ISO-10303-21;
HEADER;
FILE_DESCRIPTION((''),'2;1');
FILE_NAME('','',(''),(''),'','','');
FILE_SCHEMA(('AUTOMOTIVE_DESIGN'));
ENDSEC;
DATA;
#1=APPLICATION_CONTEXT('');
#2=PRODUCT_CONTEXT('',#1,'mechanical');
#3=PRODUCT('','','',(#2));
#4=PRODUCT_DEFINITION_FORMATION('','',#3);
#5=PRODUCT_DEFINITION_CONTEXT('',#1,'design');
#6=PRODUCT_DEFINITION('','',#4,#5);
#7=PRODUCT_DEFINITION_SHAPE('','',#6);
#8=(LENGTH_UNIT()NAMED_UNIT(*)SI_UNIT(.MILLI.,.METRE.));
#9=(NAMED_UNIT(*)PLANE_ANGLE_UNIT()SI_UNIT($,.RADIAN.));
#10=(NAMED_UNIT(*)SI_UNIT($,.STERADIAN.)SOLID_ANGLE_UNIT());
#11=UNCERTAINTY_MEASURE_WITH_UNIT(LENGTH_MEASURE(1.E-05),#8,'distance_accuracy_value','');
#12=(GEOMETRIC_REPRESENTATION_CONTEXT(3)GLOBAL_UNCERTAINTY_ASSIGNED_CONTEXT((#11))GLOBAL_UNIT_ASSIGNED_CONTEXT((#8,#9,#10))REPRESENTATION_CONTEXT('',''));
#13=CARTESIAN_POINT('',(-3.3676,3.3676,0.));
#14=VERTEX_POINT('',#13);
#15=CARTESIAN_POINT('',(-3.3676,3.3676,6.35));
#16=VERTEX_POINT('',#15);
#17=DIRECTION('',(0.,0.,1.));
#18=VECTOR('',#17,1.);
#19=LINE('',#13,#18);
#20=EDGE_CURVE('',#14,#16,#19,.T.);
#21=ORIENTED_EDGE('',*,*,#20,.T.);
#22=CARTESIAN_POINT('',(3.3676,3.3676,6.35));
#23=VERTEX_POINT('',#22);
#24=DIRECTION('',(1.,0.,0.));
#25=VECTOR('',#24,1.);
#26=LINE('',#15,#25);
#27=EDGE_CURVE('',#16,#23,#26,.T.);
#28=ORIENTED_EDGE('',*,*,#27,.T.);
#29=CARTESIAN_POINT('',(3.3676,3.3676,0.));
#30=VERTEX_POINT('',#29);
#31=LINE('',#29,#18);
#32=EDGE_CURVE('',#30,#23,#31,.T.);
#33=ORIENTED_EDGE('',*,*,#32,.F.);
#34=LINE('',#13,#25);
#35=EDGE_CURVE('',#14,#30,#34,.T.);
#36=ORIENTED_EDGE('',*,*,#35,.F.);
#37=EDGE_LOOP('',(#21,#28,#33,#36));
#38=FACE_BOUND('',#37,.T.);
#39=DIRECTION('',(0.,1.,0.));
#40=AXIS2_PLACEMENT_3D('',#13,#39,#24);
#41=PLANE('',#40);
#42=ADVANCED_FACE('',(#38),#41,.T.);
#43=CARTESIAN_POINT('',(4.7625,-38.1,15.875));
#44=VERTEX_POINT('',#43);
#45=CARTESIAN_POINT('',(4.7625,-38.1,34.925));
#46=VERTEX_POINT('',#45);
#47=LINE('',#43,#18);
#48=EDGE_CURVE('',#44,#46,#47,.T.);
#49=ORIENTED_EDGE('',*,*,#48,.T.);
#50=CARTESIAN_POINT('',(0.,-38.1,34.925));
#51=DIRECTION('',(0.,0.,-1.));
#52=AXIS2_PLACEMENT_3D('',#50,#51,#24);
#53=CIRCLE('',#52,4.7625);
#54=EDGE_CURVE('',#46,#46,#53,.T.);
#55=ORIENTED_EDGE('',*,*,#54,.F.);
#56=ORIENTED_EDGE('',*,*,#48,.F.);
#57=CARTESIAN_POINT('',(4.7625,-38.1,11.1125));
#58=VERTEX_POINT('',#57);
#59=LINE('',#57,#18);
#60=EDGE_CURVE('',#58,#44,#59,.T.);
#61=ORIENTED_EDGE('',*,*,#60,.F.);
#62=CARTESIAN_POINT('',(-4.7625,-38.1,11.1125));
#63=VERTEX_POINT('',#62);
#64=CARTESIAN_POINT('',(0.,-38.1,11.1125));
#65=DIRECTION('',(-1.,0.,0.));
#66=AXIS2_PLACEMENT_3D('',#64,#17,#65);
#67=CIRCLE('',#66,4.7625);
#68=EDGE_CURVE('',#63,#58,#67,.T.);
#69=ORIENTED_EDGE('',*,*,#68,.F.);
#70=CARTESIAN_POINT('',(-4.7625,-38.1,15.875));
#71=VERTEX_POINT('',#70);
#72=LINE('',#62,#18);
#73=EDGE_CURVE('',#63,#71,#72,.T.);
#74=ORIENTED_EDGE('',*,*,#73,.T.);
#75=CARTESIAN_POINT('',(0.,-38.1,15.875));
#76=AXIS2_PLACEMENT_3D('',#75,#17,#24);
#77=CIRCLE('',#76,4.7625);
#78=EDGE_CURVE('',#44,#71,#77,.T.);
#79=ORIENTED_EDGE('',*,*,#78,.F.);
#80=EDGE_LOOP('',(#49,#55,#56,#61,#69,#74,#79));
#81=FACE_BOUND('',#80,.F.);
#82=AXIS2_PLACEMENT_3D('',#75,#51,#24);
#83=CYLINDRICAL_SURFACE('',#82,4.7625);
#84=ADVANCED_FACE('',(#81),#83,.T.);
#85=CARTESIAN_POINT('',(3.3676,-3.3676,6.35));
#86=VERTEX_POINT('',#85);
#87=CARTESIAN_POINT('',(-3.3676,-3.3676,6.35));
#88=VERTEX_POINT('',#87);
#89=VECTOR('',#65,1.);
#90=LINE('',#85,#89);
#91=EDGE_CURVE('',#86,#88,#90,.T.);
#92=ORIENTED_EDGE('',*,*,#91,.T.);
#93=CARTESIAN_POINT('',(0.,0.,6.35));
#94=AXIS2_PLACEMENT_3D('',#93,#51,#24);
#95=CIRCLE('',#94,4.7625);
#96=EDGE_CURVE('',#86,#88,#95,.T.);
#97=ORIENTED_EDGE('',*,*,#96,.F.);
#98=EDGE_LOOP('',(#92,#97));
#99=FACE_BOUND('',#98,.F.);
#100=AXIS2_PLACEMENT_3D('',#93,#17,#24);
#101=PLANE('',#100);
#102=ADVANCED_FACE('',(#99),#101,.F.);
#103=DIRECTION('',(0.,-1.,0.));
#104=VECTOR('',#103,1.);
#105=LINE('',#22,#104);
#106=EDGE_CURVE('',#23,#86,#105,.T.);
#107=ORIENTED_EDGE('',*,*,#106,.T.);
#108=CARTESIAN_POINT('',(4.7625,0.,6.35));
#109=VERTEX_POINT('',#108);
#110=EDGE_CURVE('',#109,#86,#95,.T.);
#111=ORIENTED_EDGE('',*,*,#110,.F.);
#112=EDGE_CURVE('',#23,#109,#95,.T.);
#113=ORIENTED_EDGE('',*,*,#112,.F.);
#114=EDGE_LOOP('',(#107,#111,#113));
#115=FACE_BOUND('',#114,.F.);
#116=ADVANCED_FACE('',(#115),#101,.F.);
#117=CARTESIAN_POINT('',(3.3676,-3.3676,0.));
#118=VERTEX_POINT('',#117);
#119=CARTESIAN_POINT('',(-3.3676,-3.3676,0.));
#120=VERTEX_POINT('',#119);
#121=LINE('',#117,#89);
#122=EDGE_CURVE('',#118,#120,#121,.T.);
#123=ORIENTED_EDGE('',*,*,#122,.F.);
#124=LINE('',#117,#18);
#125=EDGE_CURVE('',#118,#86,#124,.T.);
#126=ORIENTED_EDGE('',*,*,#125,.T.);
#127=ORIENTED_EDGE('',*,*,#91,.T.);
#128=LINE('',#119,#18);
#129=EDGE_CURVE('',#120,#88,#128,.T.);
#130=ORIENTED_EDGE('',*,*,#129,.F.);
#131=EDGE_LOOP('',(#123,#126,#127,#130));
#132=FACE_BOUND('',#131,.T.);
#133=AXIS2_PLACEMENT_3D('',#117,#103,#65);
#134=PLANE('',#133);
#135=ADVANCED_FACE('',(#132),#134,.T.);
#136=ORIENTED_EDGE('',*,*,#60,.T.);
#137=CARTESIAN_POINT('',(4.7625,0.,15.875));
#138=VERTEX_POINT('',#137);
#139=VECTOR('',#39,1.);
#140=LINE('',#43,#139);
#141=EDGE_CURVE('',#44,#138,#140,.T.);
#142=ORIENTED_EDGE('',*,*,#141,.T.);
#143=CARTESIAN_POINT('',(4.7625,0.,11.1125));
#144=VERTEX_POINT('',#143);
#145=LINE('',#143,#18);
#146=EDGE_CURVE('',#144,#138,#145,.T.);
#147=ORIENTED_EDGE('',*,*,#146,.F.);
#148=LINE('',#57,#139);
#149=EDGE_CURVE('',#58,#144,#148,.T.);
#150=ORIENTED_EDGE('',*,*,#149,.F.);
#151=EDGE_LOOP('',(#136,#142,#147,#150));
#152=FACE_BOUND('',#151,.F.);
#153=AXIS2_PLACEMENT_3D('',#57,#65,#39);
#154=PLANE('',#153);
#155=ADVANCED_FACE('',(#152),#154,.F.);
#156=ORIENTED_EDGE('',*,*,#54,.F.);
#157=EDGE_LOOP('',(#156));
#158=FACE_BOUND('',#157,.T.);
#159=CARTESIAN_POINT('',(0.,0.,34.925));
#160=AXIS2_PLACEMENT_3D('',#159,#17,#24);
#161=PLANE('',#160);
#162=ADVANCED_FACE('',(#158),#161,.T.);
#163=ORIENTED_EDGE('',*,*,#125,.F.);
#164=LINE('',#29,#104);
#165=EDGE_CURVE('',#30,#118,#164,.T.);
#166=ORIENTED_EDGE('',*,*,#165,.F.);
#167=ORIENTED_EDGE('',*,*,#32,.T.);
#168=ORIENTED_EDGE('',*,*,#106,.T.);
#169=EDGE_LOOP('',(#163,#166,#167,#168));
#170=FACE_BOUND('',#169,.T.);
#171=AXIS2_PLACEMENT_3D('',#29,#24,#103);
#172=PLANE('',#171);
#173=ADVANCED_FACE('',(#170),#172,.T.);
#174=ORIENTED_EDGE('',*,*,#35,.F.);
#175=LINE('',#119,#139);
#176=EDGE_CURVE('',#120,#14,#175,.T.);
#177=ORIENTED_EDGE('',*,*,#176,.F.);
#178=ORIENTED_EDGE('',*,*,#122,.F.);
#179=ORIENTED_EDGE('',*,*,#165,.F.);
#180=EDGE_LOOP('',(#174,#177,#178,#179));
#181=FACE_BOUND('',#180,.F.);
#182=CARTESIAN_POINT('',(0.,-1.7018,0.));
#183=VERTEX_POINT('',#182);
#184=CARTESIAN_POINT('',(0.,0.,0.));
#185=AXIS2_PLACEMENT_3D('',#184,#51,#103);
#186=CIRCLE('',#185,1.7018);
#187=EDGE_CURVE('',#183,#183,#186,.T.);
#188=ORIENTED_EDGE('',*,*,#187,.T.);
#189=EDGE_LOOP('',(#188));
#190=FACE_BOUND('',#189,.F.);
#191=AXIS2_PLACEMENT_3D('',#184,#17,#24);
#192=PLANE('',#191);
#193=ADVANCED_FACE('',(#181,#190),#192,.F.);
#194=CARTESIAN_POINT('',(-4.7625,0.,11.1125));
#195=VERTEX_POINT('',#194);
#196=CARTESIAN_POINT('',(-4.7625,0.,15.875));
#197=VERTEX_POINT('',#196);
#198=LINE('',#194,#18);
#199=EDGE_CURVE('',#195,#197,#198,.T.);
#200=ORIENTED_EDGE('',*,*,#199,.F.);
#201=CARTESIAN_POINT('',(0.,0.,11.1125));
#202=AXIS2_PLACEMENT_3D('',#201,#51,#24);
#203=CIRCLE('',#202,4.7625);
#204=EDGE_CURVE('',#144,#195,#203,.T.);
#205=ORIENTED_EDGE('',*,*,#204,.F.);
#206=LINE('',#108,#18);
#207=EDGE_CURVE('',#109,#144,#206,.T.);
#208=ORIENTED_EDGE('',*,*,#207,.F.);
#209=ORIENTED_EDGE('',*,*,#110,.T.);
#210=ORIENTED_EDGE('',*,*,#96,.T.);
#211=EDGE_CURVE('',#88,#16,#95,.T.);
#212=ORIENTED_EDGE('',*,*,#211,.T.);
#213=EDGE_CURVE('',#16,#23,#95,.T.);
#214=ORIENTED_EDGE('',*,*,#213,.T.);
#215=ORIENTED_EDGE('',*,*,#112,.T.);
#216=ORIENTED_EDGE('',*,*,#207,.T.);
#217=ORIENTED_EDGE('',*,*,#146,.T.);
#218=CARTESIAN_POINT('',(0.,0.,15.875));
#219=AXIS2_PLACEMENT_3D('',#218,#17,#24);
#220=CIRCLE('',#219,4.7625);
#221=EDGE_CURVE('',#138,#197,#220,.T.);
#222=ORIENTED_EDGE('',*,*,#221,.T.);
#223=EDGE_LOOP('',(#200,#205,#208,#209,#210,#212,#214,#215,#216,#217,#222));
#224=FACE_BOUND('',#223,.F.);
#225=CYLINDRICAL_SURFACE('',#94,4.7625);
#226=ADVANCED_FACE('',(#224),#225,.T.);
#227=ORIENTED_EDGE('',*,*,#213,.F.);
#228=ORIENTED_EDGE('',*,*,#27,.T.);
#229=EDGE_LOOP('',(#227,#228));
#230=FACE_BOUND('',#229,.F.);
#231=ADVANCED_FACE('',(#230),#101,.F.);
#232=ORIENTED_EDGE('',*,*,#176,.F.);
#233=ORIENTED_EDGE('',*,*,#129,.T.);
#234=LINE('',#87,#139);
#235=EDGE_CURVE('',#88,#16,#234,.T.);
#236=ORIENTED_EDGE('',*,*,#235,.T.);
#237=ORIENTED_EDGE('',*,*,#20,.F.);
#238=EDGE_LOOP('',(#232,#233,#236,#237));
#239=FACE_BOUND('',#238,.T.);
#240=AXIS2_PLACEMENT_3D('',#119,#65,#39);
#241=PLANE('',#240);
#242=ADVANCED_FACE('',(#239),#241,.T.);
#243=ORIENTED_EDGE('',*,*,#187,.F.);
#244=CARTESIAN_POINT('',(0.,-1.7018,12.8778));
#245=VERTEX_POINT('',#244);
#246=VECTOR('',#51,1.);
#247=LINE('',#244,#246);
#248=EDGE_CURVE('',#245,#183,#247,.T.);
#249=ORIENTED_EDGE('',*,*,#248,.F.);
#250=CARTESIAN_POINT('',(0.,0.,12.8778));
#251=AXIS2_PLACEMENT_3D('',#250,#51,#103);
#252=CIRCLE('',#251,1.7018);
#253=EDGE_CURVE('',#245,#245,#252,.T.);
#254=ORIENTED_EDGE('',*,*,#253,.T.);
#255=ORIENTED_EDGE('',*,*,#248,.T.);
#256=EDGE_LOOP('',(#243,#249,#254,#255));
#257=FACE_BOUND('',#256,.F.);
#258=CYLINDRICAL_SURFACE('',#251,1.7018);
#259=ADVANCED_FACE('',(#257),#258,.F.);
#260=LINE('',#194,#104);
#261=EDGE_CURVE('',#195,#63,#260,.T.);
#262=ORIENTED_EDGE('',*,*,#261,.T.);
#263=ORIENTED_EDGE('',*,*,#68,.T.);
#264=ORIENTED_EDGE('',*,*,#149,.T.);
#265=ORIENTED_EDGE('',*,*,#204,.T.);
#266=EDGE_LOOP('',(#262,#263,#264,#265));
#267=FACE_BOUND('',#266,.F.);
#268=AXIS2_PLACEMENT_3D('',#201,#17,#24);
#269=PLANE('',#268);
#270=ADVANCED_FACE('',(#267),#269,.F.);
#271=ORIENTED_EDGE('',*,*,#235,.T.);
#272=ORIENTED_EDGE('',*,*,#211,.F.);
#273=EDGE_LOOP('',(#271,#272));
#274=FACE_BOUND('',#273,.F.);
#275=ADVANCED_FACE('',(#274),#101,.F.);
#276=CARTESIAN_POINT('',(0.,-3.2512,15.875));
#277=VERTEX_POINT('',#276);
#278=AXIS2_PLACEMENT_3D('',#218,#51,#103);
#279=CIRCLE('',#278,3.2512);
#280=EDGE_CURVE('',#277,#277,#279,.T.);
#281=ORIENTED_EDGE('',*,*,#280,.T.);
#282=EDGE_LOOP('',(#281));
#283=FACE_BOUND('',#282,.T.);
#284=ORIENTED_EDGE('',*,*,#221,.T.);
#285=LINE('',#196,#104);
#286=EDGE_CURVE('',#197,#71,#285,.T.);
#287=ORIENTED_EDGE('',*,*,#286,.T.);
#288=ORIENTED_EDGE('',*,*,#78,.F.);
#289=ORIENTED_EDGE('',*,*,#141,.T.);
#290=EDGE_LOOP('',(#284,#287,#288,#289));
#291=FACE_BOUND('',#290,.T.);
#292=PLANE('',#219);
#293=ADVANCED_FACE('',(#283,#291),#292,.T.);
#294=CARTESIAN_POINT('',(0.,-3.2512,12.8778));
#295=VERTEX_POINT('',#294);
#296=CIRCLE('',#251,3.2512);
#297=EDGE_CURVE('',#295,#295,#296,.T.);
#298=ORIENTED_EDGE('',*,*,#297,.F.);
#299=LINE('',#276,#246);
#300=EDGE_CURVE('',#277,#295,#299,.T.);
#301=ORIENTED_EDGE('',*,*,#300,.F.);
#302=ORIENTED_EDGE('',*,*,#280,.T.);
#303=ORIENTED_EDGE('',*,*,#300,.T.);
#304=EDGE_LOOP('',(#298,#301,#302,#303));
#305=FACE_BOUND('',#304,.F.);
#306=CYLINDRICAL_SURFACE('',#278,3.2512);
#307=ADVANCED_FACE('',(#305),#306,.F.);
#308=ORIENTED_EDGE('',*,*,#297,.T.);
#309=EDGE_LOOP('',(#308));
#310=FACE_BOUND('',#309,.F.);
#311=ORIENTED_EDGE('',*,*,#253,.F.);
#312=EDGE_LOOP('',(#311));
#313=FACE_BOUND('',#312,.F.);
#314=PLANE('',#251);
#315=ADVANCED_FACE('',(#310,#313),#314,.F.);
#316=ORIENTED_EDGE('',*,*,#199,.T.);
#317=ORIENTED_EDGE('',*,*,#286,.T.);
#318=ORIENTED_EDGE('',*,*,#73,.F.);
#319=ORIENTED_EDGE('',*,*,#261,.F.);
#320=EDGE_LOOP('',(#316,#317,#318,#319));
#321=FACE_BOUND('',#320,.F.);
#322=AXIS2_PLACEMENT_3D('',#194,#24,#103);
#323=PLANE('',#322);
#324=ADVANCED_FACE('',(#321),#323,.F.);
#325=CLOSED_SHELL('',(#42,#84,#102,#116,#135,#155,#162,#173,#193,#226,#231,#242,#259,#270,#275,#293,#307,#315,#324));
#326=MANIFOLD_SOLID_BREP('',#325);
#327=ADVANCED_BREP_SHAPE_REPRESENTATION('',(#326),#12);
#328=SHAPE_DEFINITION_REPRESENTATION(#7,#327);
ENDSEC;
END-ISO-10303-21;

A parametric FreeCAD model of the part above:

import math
import FreeCAD as App
import Part
import Sketcher

V = App.Vector
Q = App.Units.Quantity


def add_polygon(sketch, points):
    """Adds a closed chain of lines whose ends are joined by coincident constraints."""
    first, n = sketch.GeometryCount, len(points)
    for a, b in zip(points, points[1:] + points[:1]):
        sketch.addGeometry(Part.LineSegment(App.Vector(*a, 0), App.Vector(*b, 0)), False)
    for i in range(n):
        sketch.addConstraint(Sketcher.Constraint("Coincident", first + i, 2, first + (i + 1) % n, 1))

doc = App.newDocument("Part")
body = doc.addObject("PartDesign::Body", "Body")

# Sketch on XY plane
sketch1 = body.newObject("Sketcher::SketchObject", "Sketch")
sketch1.AttachmentSupport = (doc.getObject("XY_Plane"), [""])
sketch1.MapMode = "FlatFace"
add_polygon(sketch1, [(3, 3), (-3, 3), (-3, -3), (3, -3)])  # lines 0-3
sketch1.addConstraint([
    Sketcher.Constraint("Horizontal", 0),
    Sketcher.Constraint("Vertical", 1),
    Sketcher.Constraint("Horizontal", 2),
    Sketcher.Constraint("Vertical", 3),
    Sketcher.Constraint("Symmetric", 0, 2, 2, 2, -1, 1),
    Sketcher.Constraint("Equal", 2, 1),
    Sketcher.Constraint("DistanceX", 0, 2, 0, 1, 6.7352),
])
pad1 = body.newObject("PartDesign::Pad", "Pad")
pad1.Profile = sketch1
pad1.Length = Q("0.25 in")

# Sketch on XY plane
sketch2 = body.newObject("Sketcher::SketchObject", "Sketch001")
sketch2.AttachmentSupport = (doc.getObject("XY_Plane"), [""])
sketch2.MapMode = "FlatFace"
sketch2.AttachmentOffset = App.Placement(V(0, 0, 0.25 * 25.4), App.Rotation())
sketch2.addGeometry(Part.Circle(V(0, 0, 0), V(0, 0, 1), 4.8), False)
sketch2.addConstraint([
    Sketcher.Constraint("Coincident", 0, 3, -1, 1),
    Sketcher.Constraint("Diameter", 0, Q("0.375 in")),
])
pad2 = body.newObject("PartDesign::Pad", "Pad001")
pad2.Profile = sketch2
pad2.Length = Q("0.1875 in")

# Sketch on XY plane
sketch3 = body.newObject("Sketcher::SketchObject", "Sketch002")
sketch3.AttachmentSupport = (doc.getObject("XY_Plane"), [""])
sketch3.MapMode = "FlatFace"
sketch3.AttachmentOffset = App.Placement(V(0, 0, 0.4375 * 25.4), App.Rotation())
sketch3.addGeometry([
    Part.ArcOfCircle(Part.Circle(V(0, 0, 0), V(0, 0, 1), 4.8), math.radians(0), math.radians(180)),
    Part.LineSegment(V(-4.8, 0, 0), V(-4.8, -38.1, 0)),
    Part.ArcOfCircle(Part.Circle(V(0, -38.1, 0), V(0, 0, 1), 4.8), math.radians(180), math.radians(360)),
    Part.LineSegment(V(4.8, -38.1, 0), V(4.8, 0, 0)),
], False)
sketch3.addConstraint([
    Sketcher.Constraint("Tangent", 0, 2, 1, 1),
    Sketcher.Constraint("Tangent", 1, 2, 2, 1),
    Sketcher.Constraint("Tangent", 2, 2, 3, 1),
    Sketcher.Constraint("Tangent", 3, 2, 0, 1),
    Sketcher.Constraint("Vertical", 1),
    Sketcher.Constraint("Vertical", 3),
    Sketcher.Constraint("Coincident", 0, 3, -1, 1),
    Sketcher.Constraint("DistanceY", 1, 2, 1, 1, Q("1.5 in")),
    Sketcher.Constraint("Radius", 0, Q("0.1875 in")),
])
pad3 = body.newObject("PartDesign::Pad", "Pad002")
pad3.Profile = sketch3
pad3.Length = Q("0.1875 in")

# Sketch on XY plane
sketch4 = body.newObject("Sketcher::SketchObject", "Sketch003")
sketch4.AttachmentSupport = (doc.getObject("XY_Plane"), [""])
sketch4.MapMode = "FlatFace"
sketch4.AttachmentOffset = App.Placement(V(0, 0, 0.625 * 25.4), App.Rotation())
sketch4.addGeometry(Part.Circle(V(0, -38.1, 0), V(0, 0, 1), 4.8), False)
sketch4.addConstraint([
    Sketcher.Constraint("PointOnObject", 0, 3, -2),
    Sketcher.Constraint("Diameter", 0, Q("0.375 in")),
    Sketcher.Constraint("DistanceY", 0, 3, -1, 1, Q("1.5 in")),
])
pad4 = body.newObject("PartDesign::Pad", "Pad003")
pad4.Profile = sketch4
pad4.Length = Q("0.75 in")

# Sketch on XY plane
sketch5 = body.newObject("Sketcher::SketchObject", "Sketch004")
sketch5.AttachmentSupport = (doc.getObject("XY_Plane"), [""])
sketch5.MapMode = "FlatFace"
sketch5.AttachmentOffset = App.Placement(V(0, 0, 0.625 * 25.4), App.Rotation())
sketch5.addGeometry(Part.Circle(V(0, 0, 0), V(0, 0, 1), 1.7), False)
sketch5.addConstraint([
    Sketcher.Constraint("Coincident", 0, 3, -1, 1),
    Sketcher.Constraint("Diameter", 0, Q("0.134 in")),
])
doc.recompute()
hole = body.newObject("PartDesign::Hole", "Hole")
hole.Profile = sketch5
hole.ThreadType = "None"
hole.Diameter = Q("0.134 in")
hole.DepthType = "ThroughAll"
hole.HoleCutType = "Counterbore"
hole.HoleCutDiameter = Q("0.256 in")
hole.HoleCutDepth = Q("0.118 in")

doc.recompute()
